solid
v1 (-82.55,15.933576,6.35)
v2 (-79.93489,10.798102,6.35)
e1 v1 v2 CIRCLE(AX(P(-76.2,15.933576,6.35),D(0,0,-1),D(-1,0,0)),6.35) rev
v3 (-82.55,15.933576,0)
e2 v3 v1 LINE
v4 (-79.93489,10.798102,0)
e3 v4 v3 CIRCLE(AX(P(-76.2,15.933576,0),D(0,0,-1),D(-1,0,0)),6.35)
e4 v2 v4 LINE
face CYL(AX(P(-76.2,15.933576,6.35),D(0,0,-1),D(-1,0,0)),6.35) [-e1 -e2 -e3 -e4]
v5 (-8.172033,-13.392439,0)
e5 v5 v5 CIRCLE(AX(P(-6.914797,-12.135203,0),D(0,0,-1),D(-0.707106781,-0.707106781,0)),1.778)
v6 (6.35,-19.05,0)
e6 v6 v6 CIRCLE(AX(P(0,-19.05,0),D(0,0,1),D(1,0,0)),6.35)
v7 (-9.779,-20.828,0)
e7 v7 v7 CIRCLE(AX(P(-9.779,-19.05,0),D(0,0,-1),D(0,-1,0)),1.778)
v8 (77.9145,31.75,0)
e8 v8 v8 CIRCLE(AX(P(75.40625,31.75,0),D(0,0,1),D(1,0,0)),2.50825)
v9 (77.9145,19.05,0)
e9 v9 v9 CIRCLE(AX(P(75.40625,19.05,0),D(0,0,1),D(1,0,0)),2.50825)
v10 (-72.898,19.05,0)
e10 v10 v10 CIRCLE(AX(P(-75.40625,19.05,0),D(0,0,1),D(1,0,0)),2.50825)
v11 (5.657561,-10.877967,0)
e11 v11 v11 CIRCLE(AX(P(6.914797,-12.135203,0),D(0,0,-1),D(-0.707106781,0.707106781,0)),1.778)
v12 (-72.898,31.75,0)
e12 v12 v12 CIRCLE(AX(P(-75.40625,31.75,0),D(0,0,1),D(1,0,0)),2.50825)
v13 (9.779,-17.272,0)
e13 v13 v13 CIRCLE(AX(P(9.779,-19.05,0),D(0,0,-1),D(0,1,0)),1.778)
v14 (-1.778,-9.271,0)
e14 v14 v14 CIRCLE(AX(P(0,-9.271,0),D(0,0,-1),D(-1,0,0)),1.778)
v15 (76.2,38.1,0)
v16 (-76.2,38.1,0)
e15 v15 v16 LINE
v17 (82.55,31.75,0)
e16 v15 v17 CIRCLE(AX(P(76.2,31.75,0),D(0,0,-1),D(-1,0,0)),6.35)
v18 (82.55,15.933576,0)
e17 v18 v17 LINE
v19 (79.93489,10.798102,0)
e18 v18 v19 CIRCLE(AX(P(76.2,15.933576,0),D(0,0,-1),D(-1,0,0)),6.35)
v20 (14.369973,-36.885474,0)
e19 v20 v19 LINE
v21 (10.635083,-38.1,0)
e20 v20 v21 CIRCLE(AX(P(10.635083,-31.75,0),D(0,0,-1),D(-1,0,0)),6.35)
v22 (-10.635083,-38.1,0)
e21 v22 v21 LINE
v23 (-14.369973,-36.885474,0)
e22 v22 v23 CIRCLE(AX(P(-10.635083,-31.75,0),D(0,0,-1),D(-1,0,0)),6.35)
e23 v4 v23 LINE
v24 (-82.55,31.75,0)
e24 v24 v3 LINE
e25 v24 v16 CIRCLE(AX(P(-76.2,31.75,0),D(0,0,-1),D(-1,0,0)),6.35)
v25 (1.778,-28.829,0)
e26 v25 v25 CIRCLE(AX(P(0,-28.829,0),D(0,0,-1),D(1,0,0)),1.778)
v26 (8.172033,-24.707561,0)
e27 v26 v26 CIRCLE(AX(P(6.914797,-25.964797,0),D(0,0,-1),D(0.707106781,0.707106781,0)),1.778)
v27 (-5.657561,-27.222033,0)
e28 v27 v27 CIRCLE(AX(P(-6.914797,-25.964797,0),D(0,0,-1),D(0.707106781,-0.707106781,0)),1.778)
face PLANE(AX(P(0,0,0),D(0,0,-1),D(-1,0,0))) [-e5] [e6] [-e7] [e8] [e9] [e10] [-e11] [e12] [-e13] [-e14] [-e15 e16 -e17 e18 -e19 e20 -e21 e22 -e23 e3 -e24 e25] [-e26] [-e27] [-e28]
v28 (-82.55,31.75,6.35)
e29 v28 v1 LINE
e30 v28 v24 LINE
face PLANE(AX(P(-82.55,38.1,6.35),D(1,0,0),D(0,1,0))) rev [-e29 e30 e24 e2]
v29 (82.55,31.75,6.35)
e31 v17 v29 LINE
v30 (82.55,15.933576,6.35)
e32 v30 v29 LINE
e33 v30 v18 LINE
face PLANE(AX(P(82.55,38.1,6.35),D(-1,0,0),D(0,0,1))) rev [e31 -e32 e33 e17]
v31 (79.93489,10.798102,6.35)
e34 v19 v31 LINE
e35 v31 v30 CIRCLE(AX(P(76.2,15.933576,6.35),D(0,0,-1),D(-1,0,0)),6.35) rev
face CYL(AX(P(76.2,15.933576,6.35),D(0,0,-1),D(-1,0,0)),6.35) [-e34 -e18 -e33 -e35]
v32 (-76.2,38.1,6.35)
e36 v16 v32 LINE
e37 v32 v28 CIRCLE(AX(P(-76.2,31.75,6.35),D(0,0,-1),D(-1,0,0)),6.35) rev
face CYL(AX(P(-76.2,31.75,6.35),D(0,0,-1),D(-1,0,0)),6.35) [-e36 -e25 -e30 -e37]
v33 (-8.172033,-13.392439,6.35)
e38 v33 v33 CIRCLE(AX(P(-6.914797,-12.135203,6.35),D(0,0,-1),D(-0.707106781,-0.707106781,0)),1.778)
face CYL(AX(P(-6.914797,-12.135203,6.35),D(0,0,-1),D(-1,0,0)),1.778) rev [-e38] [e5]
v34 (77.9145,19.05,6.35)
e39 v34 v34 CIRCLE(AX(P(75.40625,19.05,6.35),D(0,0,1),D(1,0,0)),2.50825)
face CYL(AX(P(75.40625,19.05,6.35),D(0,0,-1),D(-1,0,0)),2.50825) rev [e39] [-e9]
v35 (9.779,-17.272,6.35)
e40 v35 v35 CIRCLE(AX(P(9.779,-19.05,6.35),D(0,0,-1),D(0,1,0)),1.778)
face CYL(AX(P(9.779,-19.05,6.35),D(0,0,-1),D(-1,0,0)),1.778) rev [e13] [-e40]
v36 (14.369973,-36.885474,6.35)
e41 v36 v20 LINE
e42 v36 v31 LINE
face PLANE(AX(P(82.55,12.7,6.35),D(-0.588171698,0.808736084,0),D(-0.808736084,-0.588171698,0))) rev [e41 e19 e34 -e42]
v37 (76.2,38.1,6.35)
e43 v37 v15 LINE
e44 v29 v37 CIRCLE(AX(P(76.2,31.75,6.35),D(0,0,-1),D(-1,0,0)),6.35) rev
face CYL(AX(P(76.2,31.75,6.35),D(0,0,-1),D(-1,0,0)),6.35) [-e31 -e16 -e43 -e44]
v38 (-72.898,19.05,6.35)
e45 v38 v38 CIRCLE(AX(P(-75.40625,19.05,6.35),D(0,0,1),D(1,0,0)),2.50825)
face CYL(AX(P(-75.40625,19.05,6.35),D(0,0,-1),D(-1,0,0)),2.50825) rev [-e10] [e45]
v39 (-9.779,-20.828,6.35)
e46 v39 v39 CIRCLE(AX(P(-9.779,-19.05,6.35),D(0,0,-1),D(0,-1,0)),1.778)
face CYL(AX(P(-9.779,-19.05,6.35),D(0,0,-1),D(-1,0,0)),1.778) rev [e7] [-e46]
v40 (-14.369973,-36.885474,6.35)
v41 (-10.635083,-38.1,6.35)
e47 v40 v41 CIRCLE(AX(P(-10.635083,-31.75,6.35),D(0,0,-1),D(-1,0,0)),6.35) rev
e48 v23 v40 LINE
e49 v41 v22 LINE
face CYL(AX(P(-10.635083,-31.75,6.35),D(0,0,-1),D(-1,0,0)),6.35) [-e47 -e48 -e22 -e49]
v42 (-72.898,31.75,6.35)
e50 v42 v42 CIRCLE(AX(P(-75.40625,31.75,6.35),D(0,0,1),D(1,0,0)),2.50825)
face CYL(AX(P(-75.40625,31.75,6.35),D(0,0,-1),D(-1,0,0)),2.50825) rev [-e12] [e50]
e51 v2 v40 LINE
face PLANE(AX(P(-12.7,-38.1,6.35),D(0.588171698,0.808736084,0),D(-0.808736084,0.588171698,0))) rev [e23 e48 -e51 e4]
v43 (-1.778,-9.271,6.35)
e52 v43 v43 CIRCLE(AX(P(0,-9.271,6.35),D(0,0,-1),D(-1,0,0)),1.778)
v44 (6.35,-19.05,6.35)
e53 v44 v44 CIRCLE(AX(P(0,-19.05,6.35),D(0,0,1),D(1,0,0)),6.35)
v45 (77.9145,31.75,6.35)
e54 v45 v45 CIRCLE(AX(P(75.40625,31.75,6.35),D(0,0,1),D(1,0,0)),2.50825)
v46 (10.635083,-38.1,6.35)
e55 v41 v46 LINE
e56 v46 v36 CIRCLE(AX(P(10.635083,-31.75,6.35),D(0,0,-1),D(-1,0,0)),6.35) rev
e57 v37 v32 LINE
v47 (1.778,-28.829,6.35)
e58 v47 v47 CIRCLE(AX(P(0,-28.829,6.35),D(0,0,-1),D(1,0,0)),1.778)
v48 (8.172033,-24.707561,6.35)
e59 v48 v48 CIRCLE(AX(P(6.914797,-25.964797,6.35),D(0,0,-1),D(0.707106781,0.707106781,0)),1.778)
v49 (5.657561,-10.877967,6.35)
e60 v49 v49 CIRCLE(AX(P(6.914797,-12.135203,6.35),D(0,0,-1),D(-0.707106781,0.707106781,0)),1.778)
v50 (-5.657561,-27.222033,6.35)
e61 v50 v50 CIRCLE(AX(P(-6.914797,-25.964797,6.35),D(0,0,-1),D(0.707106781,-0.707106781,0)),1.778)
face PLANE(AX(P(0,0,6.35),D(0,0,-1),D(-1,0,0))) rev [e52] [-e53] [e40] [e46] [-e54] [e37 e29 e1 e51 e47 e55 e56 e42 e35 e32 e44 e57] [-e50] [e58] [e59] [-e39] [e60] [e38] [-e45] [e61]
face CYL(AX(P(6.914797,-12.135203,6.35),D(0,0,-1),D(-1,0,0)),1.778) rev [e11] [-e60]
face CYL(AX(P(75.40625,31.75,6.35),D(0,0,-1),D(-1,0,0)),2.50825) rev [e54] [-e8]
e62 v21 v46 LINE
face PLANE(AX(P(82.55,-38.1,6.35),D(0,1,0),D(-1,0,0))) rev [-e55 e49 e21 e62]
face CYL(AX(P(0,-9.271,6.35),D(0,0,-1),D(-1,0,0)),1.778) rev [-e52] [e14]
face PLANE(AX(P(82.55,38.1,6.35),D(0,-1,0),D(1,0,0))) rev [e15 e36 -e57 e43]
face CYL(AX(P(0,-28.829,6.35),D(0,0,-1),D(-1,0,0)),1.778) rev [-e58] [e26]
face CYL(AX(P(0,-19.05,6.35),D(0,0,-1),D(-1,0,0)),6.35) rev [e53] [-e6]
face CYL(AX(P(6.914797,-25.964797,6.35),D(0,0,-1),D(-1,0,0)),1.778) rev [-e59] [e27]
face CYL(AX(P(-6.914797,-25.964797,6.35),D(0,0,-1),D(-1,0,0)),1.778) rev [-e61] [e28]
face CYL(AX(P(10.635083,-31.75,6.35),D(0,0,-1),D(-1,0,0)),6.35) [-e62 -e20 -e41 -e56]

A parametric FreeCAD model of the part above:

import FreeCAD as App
import Part
import Sketcher
Q = App.Units.Quantity


def edges_at(feature, points):
    """Names of the edges that pass closest to the given points."""
    edges = feature.Shape.Edges
    near = lambda p: min(range(len(edges)), key=lambda i: edges[i].distToShape(Part.Vertex(*p))[0])
    return sorted({f"Edge{near(p) + 1}" for p in points})


def add_polygon(sketch, points):
    """Adds a closed chain of lines whose ends are joined by coincident constraints."""
    first, n = sketch.GeometryCount, len(points)
    for a, b in zip(points, points[1:] + points[:1]):
        sketch.addGeometry(Part.LineSegment(App.Vector(*a, 0), App.Vector(*b, 0)), False)
    for i in range(n):
        sketch.addConstraint(Sketcher.Constraint("Coincident", first + i, 2, first + (i + 1) % n, 1))

doc = App.newDocument("Part")
body = doc.addObject("PartDesign::Body", "Body")

# Sketch on XY plane
sketch1 = doc.addObject("Sketcher::SketchObject", "Sketch")
body.addObject(sketch1)
sketch1.AttachmentSupport = (doc.XY_Plane, [""])
sketch1.MapMode = "FlatFace"
add_polygon(sketch1, [(-82.5, 38.1), (-82.5, -38.1), (82.5, -38.1), (82.5, 38.1)])  # lines 0-3
sketch1.addGeometry(Part.Circle(App.Vector(0, -19.1, 0), App.Vector(0, 0, 1), 6.3), False)  # 4
sketch1.addGeometry(Part.Circle(App.Vector(-75.4, 19.1, 0), App.Vector(0, 0, 1), 2.5), False)  # 5
sketch1.addGeometry(Part.Circle(App.Vector(-75.4, 31.8, 0), App.Vector(0, 0, 1), 2.5), False)  # 6
sketch1.addGeometry(Part.Circle(App.Vector(75.4, 19.1, 0), App.Vector(0, 0, 1), 2.5), False)  # 7
sketch1.addGeometry(Part.Circle(App.Vector(75.4, 31.8, 0), App.Vector(0, 0, 1), 2.5), False)  # 8
sketch1.addConstraint(Sketcher.Constraint("Vertical", 0))
sketch1.addConstraint(Sketcher.Constraint("Horizontal", 1))
sketch1.addConstraint(Sketcher.Constraint("Vertical", 2))
sketch1.addConstraint(Sketcher.Constraint("Horizontal", 3))
sketch1.addConstraint(Sketcher.Constraint("Equal", 5, 6))
sketch1.addConstraint(Sketcher.Constraint("Equal", 6, 7))
sketch1.addConstraint(Sketcher.Constraint("Equal", 7, 8))
sketch1.addConstraint(Sketcher.Constraint("Symmetric", 0, 2, 2, 2, -1, 1))
sketch1.addConstraint(Sketcher.Constraint("Symmetric", 5, 3, 7, 3, -2))
sketch1.addConstraint(Sketcher.Constraint("Symmetric", 6, 3, 8, 3, -2))
sketch1.addConstraint(Sketcher.Constraint("PointOnObject", 4, 3, -2))
sketch1.addConstraint(Sketcher.Constraint("Vertical", 5, 3, 6, 3))
sketch1.addConstraint(Sketcher.Constraint("Diameter", 4, Q("0.5 in")))
sketch1.addConstraint(Sketcher.Constraint("DistanceY", 0, 2, 0, 1, Q("3 in")))
sketch1.addConstraint(Sketcher.Constraint("DistanceX", 1, 1, 1, 2, Q("6.5 in")))
sketch1.addConstraint(Sketcher.Constraint("DistanceY", 4, 3, 6, 3, Q("2 in")))
sketch1.addConstraint(Sketcher.Constraint("Diameter", 5, Q("0.1975 in")))
sketch1.addConstraint(Sketcher.Constraint("DistanceY", 4, 3, 5, 3, Q("1.5 in")))
sketch1.addConstraint(Sketcher.Constraint("DistanceY", 4, 3, -1, 1, Q("0.75 in")))
sketch1.addConstraint(Sketcher.Constraint("DistanceX", 5, 3, -1, 1, Q("2.96875 in")))
pad1 = doc.addObject("PartDesign::Pad", "Pad")
body.addObject(pad1)
pad1.Profile = sketch1
pad1.Length = Q("0.25 in")

# Sketch on XY plane
sketch2 = doc.addObject("Sketcher::SketchObject", "Sketch001")
body.addObject(sketch2)
sketch2.AttachmentSupport = (doc.XY_Plane, [""])
sketch2.MapMode = "FlatFace"
add_polygon(sketch2, [(-83, 13), (-13, -38), (-83, -38)])  # lines 0-2
add_polygon(sketch2, [(83, 13), (83, -38), (13, -38)])  # lines 3-5
sketch2.addConstraint(Sketcher.Constraint("Horizontal", 1))
sketch2.addConstraint(Sketcher.Constraint("Vertical", 2))
sketch2.addConstraint(Sketcher.Constraint("Vertical", 3))
sketch2.addConstraint(Sketcher.Constraint("Horizontal", 4))
sketch2.addConstraint(Sketcher.Constraint("Symmetric", 1, 2, 3, 2, -2))
sketch2.addConstraint(Sketcher.Constraint("Horizontal", 2, 2, 5, 2))
sketch2.addConstraint(Sketcher.Constraint("Equal", 1, 4))
sketch2.addConstraint(Sketcher.Constraint("DistanceY", 2, 1, 2, 2, Q("2 in")))
sketch2.addConstraint(Sketcher.Constraint("DistanceX", 0, 2, 4, 2, Q("1 in")))
sketch2.addConstraint(Sketcher.Constraint("DistanceX", 1, 2, 1, 1, Q("2.75 in")))
sketch2.addConstraint(Sketcher.Constraint("DistanceY", 0, 2, -1, 1, Q("1.5 in")))
pocket1 = doc.addObject("PartDesign::Pocket", "Pocket")
body.addObject(pocket1)
pocket1.Profile = sketch2
pocket1.Length = Q("0.25 in")
pocket1.Reversed = True
doc.recompute()

fillet = doc.addObject("PartDesign::Fillet", "Fillet")
body.addObject(fillet)
fillet.Base = (pocket1, edges_at(pocket1, [
    (-12.7, -38.1, 3.175),
    (-82.55, 12.7, 3.175),
    (12.7, -38.1, 3.175),
    (82.55, 12.7, 3.175),
    (-82.55, 38.1, 3.175),
    (82.55, 38.1, 3.175),
]))
fillet.Radius = Q("0.25 in")

# Sketch on XY plane
sketch3 = doc.addObject("Sketcher::SketchObject", "Sketch002")
body.addObject(sketch3)
sketch3.AttachmentSupport = (doc.XY_Plane, [""])
sketch3.MapMode = "FlatFace"
sketch3.addGeometry(Part.Circle(App.Vector(0, -9.3, 0), App.Vector(0, 0, 1), 1.8), False)
sketch3.addConstraint(Sketcher.Constraint("PointOnObject", 0, 3, -2))
sketch3.addConstraint(Sketcher.Constraint("Diameter", 0, Q("0.14 in")))
sketch3.addConstraint(Sketcher.Constraint("DistanceY", 0, 3, -1, 1, Q("0.365 in")))
pocket2 = doc.addObject("PartDesign::Pocket", "Pocket001")
body.addObject(pocket2)
pocket2.Profile = sketch3
pocket2.Length = Q("0.25 in")
pocket2.Reversed = True
doc.recompute()

datumline = doc.addObject("PartDesign::Line", "DatumLine")
body.addObject(datumline)
datumline.Placement = App.Placement(App.Vector(0, -19.05, 0), App.Rotation(App.Vector(0, 0, 1), App.Vector(0, 0, 1)))
polarpattern = doc.addObject("PartDesign::PolarPattern", "PolarPattern")
body.addObject(polarpattern)
polarpattern.Originals = [pocket2]
polarpattern.Axis = (datumline, [""])
polarpattern.Angle = 360
polarpattern.Occurrences = 8
body.Tip = polarpattern

doc.recompute()
